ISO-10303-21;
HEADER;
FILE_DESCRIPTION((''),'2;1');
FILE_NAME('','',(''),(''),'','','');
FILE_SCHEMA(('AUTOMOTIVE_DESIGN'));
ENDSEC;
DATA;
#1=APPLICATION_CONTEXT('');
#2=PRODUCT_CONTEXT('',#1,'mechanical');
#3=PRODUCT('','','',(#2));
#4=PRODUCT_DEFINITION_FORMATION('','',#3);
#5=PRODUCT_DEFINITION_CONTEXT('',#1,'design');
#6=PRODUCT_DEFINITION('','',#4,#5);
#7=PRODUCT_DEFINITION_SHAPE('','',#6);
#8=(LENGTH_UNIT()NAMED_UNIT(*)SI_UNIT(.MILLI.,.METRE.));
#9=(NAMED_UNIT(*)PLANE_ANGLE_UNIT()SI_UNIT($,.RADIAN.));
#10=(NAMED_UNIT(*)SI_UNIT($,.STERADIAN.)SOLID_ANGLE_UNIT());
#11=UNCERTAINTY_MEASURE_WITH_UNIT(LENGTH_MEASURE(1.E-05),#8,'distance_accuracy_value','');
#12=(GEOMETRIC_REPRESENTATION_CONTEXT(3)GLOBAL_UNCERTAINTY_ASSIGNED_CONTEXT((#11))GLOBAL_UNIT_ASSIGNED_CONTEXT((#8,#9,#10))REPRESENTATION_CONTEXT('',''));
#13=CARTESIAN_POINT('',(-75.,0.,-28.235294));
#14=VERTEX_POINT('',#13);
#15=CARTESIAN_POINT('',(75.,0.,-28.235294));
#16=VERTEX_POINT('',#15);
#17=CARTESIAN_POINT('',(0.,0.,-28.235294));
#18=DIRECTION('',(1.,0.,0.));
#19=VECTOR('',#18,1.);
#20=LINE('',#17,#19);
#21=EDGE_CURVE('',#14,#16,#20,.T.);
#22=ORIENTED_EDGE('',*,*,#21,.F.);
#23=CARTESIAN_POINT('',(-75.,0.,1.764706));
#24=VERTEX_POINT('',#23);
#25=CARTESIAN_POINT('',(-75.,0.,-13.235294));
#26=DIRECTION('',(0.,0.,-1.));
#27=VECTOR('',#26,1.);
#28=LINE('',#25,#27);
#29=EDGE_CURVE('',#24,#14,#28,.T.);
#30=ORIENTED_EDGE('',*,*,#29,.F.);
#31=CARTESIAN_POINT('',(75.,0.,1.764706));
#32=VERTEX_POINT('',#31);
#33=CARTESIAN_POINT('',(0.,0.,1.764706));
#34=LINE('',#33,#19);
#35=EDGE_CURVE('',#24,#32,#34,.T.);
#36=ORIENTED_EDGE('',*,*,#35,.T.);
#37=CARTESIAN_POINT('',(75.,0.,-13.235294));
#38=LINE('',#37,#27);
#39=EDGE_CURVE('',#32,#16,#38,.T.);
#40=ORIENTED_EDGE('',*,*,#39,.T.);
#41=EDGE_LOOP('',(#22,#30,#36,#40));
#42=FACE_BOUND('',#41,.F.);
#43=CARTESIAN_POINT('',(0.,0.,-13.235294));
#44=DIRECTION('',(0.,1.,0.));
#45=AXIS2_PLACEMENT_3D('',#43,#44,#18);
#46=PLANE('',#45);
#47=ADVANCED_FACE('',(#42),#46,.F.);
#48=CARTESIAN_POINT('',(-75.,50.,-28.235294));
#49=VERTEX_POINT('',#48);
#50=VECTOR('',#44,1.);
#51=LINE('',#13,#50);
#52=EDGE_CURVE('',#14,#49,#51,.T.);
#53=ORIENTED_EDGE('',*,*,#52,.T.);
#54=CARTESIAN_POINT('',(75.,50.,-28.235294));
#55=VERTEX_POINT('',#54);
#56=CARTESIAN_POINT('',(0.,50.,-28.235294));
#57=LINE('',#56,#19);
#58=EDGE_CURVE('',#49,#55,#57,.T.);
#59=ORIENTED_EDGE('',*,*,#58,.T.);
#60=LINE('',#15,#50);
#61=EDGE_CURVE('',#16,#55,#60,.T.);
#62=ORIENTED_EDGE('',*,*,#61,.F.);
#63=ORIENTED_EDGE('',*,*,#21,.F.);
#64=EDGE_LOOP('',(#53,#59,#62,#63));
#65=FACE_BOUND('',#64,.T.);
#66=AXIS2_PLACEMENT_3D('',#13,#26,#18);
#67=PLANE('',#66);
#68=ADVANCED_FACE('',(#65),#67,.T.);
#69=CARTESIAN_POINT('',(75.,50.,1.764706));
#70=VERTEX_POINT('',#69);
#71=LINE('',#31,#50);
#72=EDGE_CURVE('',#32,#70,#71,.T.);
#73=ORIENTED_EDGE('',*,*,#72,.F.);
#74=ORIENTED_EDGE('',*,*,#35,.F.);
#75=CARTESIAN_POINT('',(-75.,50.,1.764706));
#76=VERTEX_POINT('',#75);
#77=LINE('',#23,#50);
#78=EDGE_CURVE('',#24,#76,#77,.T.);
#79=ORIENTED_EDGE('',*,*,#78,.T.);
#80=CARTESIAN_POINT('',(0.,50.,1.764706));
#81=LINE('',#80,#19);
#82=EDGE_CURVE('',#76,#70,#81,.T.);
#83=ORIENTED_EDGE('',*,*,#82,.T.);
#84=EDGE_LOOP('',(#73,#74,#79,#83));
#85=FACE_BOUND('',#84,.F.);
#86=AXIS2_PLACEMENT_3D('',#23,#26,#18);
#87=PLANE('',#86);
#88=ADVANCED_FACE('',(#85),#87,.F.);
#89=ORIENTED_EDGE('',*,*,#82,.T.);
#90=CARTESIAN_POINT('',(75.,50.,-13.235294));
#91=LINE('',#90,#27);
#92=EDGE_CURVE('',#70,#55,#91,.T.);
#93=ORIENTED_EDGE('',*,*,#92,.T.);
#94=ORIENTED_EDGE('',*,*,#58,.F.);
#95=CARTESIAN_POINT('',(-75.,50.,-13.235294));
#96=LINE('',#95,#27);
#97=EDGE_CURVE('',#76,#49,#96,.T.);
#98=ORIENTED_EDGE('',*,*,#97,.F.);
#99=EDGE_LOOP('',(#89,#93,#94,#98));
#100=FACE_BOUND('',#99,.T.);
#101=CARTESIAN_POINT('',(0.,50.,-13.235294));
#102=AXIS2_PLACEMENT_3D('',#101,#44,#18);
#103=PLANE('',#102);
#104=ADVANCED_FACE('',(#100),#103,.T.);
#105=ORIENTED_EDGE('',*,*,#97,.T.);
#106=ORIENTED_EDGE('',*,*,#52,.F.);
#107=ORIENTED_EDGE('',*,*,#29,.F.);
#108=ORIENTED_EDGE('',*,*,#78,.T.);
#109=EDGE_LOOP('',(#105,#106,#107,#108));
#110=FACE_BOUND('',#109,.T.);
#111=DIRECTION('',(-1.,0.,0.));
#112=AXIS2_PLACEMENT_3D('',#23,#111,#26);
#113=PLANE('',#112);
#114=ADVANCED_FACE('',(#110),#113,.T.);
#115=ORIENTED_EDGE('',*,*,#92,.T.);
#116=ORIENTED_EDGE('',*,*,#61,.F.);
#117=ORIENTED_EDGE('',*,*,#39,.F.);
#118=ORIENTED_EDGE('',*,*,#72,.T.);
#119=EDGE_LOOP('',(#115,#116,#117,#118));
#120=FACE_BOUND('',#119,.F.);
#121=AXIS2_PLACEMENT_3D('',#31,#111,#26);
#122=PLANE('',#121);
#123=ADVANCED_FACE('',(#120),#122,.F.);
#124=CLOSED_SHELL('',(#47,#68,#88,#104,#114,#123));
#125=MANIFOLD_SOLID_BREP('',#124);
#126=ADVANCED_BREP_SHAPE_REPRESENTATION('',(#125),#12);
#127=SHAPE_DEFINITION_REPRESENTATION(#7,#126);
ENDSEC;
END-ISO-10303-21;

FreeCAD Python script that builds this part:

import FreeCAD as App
import Part
import Sketcher

doc = App.newDocument("Part")
body = doc.addObject("PartDesign::Body", "Body")

# Sketch on XZ plane
sketch1 = body.newObject("Sketcher::SketchObject", "Sketch")
sketch1.AttachmentSupport = (doc.getObject("XZ_Plane"), [""])
sketch1.MapMode = "FlatFace"
sketch1.addGeometry([
    Part.LineSegment(App.Vector(-75, -28, 0), App.Vector(-75, 2, 0)),
    Part.LineSegment(App.Vector(-75, 2, 0), App.Vector(75, 2, 0)),
    Part.LineSegment(App.Vector(75, 2, 0), App.Vector(75, -28, 0)),
    Part.LineSegment(App.Vector(75, -28, 0), App.Vector(-75, -28, 0)),
], False)
sketch1.addConstraint([
    Sketcher.Constraint("Coincident", 0, 2, 1, 1),
    Sketcher.Constraint("Coincident", 1, 2, 2, 1),
    Sketcher.Constraint("Coincident", 2, 2, 3, 1),
    Sketcher.Constraint("Coincident", 3, 2, 0, 1),
    Sketcher.Constraint("Vertical", 0),
    Sketcher.Constraint("Horizontal", 1),
    Sketcher.Constraint("Vertical", 2),
    Sketcher.Constraint("Horizontal", 3),
    Sketcher.Constraint("DistanceX", 1, 1, 1, 2, 150.0),
    Sketcher.Constraint("DistanceY", 0, 1, 0, 2, 30.0),
    Sketcher.Constraint("DistanceX", 0, 2, -1, 1, 75.0),
    Sketcher.Constraint("DistanceY", -1, 1, 0, 2, 1.764706),
])
pad1 = body.newObject("PartDesign::Pad", "Pad")
pad1.Profile = sketch1
pad1.Length = 50
pad1.Reversed = True

doc.recompute()
